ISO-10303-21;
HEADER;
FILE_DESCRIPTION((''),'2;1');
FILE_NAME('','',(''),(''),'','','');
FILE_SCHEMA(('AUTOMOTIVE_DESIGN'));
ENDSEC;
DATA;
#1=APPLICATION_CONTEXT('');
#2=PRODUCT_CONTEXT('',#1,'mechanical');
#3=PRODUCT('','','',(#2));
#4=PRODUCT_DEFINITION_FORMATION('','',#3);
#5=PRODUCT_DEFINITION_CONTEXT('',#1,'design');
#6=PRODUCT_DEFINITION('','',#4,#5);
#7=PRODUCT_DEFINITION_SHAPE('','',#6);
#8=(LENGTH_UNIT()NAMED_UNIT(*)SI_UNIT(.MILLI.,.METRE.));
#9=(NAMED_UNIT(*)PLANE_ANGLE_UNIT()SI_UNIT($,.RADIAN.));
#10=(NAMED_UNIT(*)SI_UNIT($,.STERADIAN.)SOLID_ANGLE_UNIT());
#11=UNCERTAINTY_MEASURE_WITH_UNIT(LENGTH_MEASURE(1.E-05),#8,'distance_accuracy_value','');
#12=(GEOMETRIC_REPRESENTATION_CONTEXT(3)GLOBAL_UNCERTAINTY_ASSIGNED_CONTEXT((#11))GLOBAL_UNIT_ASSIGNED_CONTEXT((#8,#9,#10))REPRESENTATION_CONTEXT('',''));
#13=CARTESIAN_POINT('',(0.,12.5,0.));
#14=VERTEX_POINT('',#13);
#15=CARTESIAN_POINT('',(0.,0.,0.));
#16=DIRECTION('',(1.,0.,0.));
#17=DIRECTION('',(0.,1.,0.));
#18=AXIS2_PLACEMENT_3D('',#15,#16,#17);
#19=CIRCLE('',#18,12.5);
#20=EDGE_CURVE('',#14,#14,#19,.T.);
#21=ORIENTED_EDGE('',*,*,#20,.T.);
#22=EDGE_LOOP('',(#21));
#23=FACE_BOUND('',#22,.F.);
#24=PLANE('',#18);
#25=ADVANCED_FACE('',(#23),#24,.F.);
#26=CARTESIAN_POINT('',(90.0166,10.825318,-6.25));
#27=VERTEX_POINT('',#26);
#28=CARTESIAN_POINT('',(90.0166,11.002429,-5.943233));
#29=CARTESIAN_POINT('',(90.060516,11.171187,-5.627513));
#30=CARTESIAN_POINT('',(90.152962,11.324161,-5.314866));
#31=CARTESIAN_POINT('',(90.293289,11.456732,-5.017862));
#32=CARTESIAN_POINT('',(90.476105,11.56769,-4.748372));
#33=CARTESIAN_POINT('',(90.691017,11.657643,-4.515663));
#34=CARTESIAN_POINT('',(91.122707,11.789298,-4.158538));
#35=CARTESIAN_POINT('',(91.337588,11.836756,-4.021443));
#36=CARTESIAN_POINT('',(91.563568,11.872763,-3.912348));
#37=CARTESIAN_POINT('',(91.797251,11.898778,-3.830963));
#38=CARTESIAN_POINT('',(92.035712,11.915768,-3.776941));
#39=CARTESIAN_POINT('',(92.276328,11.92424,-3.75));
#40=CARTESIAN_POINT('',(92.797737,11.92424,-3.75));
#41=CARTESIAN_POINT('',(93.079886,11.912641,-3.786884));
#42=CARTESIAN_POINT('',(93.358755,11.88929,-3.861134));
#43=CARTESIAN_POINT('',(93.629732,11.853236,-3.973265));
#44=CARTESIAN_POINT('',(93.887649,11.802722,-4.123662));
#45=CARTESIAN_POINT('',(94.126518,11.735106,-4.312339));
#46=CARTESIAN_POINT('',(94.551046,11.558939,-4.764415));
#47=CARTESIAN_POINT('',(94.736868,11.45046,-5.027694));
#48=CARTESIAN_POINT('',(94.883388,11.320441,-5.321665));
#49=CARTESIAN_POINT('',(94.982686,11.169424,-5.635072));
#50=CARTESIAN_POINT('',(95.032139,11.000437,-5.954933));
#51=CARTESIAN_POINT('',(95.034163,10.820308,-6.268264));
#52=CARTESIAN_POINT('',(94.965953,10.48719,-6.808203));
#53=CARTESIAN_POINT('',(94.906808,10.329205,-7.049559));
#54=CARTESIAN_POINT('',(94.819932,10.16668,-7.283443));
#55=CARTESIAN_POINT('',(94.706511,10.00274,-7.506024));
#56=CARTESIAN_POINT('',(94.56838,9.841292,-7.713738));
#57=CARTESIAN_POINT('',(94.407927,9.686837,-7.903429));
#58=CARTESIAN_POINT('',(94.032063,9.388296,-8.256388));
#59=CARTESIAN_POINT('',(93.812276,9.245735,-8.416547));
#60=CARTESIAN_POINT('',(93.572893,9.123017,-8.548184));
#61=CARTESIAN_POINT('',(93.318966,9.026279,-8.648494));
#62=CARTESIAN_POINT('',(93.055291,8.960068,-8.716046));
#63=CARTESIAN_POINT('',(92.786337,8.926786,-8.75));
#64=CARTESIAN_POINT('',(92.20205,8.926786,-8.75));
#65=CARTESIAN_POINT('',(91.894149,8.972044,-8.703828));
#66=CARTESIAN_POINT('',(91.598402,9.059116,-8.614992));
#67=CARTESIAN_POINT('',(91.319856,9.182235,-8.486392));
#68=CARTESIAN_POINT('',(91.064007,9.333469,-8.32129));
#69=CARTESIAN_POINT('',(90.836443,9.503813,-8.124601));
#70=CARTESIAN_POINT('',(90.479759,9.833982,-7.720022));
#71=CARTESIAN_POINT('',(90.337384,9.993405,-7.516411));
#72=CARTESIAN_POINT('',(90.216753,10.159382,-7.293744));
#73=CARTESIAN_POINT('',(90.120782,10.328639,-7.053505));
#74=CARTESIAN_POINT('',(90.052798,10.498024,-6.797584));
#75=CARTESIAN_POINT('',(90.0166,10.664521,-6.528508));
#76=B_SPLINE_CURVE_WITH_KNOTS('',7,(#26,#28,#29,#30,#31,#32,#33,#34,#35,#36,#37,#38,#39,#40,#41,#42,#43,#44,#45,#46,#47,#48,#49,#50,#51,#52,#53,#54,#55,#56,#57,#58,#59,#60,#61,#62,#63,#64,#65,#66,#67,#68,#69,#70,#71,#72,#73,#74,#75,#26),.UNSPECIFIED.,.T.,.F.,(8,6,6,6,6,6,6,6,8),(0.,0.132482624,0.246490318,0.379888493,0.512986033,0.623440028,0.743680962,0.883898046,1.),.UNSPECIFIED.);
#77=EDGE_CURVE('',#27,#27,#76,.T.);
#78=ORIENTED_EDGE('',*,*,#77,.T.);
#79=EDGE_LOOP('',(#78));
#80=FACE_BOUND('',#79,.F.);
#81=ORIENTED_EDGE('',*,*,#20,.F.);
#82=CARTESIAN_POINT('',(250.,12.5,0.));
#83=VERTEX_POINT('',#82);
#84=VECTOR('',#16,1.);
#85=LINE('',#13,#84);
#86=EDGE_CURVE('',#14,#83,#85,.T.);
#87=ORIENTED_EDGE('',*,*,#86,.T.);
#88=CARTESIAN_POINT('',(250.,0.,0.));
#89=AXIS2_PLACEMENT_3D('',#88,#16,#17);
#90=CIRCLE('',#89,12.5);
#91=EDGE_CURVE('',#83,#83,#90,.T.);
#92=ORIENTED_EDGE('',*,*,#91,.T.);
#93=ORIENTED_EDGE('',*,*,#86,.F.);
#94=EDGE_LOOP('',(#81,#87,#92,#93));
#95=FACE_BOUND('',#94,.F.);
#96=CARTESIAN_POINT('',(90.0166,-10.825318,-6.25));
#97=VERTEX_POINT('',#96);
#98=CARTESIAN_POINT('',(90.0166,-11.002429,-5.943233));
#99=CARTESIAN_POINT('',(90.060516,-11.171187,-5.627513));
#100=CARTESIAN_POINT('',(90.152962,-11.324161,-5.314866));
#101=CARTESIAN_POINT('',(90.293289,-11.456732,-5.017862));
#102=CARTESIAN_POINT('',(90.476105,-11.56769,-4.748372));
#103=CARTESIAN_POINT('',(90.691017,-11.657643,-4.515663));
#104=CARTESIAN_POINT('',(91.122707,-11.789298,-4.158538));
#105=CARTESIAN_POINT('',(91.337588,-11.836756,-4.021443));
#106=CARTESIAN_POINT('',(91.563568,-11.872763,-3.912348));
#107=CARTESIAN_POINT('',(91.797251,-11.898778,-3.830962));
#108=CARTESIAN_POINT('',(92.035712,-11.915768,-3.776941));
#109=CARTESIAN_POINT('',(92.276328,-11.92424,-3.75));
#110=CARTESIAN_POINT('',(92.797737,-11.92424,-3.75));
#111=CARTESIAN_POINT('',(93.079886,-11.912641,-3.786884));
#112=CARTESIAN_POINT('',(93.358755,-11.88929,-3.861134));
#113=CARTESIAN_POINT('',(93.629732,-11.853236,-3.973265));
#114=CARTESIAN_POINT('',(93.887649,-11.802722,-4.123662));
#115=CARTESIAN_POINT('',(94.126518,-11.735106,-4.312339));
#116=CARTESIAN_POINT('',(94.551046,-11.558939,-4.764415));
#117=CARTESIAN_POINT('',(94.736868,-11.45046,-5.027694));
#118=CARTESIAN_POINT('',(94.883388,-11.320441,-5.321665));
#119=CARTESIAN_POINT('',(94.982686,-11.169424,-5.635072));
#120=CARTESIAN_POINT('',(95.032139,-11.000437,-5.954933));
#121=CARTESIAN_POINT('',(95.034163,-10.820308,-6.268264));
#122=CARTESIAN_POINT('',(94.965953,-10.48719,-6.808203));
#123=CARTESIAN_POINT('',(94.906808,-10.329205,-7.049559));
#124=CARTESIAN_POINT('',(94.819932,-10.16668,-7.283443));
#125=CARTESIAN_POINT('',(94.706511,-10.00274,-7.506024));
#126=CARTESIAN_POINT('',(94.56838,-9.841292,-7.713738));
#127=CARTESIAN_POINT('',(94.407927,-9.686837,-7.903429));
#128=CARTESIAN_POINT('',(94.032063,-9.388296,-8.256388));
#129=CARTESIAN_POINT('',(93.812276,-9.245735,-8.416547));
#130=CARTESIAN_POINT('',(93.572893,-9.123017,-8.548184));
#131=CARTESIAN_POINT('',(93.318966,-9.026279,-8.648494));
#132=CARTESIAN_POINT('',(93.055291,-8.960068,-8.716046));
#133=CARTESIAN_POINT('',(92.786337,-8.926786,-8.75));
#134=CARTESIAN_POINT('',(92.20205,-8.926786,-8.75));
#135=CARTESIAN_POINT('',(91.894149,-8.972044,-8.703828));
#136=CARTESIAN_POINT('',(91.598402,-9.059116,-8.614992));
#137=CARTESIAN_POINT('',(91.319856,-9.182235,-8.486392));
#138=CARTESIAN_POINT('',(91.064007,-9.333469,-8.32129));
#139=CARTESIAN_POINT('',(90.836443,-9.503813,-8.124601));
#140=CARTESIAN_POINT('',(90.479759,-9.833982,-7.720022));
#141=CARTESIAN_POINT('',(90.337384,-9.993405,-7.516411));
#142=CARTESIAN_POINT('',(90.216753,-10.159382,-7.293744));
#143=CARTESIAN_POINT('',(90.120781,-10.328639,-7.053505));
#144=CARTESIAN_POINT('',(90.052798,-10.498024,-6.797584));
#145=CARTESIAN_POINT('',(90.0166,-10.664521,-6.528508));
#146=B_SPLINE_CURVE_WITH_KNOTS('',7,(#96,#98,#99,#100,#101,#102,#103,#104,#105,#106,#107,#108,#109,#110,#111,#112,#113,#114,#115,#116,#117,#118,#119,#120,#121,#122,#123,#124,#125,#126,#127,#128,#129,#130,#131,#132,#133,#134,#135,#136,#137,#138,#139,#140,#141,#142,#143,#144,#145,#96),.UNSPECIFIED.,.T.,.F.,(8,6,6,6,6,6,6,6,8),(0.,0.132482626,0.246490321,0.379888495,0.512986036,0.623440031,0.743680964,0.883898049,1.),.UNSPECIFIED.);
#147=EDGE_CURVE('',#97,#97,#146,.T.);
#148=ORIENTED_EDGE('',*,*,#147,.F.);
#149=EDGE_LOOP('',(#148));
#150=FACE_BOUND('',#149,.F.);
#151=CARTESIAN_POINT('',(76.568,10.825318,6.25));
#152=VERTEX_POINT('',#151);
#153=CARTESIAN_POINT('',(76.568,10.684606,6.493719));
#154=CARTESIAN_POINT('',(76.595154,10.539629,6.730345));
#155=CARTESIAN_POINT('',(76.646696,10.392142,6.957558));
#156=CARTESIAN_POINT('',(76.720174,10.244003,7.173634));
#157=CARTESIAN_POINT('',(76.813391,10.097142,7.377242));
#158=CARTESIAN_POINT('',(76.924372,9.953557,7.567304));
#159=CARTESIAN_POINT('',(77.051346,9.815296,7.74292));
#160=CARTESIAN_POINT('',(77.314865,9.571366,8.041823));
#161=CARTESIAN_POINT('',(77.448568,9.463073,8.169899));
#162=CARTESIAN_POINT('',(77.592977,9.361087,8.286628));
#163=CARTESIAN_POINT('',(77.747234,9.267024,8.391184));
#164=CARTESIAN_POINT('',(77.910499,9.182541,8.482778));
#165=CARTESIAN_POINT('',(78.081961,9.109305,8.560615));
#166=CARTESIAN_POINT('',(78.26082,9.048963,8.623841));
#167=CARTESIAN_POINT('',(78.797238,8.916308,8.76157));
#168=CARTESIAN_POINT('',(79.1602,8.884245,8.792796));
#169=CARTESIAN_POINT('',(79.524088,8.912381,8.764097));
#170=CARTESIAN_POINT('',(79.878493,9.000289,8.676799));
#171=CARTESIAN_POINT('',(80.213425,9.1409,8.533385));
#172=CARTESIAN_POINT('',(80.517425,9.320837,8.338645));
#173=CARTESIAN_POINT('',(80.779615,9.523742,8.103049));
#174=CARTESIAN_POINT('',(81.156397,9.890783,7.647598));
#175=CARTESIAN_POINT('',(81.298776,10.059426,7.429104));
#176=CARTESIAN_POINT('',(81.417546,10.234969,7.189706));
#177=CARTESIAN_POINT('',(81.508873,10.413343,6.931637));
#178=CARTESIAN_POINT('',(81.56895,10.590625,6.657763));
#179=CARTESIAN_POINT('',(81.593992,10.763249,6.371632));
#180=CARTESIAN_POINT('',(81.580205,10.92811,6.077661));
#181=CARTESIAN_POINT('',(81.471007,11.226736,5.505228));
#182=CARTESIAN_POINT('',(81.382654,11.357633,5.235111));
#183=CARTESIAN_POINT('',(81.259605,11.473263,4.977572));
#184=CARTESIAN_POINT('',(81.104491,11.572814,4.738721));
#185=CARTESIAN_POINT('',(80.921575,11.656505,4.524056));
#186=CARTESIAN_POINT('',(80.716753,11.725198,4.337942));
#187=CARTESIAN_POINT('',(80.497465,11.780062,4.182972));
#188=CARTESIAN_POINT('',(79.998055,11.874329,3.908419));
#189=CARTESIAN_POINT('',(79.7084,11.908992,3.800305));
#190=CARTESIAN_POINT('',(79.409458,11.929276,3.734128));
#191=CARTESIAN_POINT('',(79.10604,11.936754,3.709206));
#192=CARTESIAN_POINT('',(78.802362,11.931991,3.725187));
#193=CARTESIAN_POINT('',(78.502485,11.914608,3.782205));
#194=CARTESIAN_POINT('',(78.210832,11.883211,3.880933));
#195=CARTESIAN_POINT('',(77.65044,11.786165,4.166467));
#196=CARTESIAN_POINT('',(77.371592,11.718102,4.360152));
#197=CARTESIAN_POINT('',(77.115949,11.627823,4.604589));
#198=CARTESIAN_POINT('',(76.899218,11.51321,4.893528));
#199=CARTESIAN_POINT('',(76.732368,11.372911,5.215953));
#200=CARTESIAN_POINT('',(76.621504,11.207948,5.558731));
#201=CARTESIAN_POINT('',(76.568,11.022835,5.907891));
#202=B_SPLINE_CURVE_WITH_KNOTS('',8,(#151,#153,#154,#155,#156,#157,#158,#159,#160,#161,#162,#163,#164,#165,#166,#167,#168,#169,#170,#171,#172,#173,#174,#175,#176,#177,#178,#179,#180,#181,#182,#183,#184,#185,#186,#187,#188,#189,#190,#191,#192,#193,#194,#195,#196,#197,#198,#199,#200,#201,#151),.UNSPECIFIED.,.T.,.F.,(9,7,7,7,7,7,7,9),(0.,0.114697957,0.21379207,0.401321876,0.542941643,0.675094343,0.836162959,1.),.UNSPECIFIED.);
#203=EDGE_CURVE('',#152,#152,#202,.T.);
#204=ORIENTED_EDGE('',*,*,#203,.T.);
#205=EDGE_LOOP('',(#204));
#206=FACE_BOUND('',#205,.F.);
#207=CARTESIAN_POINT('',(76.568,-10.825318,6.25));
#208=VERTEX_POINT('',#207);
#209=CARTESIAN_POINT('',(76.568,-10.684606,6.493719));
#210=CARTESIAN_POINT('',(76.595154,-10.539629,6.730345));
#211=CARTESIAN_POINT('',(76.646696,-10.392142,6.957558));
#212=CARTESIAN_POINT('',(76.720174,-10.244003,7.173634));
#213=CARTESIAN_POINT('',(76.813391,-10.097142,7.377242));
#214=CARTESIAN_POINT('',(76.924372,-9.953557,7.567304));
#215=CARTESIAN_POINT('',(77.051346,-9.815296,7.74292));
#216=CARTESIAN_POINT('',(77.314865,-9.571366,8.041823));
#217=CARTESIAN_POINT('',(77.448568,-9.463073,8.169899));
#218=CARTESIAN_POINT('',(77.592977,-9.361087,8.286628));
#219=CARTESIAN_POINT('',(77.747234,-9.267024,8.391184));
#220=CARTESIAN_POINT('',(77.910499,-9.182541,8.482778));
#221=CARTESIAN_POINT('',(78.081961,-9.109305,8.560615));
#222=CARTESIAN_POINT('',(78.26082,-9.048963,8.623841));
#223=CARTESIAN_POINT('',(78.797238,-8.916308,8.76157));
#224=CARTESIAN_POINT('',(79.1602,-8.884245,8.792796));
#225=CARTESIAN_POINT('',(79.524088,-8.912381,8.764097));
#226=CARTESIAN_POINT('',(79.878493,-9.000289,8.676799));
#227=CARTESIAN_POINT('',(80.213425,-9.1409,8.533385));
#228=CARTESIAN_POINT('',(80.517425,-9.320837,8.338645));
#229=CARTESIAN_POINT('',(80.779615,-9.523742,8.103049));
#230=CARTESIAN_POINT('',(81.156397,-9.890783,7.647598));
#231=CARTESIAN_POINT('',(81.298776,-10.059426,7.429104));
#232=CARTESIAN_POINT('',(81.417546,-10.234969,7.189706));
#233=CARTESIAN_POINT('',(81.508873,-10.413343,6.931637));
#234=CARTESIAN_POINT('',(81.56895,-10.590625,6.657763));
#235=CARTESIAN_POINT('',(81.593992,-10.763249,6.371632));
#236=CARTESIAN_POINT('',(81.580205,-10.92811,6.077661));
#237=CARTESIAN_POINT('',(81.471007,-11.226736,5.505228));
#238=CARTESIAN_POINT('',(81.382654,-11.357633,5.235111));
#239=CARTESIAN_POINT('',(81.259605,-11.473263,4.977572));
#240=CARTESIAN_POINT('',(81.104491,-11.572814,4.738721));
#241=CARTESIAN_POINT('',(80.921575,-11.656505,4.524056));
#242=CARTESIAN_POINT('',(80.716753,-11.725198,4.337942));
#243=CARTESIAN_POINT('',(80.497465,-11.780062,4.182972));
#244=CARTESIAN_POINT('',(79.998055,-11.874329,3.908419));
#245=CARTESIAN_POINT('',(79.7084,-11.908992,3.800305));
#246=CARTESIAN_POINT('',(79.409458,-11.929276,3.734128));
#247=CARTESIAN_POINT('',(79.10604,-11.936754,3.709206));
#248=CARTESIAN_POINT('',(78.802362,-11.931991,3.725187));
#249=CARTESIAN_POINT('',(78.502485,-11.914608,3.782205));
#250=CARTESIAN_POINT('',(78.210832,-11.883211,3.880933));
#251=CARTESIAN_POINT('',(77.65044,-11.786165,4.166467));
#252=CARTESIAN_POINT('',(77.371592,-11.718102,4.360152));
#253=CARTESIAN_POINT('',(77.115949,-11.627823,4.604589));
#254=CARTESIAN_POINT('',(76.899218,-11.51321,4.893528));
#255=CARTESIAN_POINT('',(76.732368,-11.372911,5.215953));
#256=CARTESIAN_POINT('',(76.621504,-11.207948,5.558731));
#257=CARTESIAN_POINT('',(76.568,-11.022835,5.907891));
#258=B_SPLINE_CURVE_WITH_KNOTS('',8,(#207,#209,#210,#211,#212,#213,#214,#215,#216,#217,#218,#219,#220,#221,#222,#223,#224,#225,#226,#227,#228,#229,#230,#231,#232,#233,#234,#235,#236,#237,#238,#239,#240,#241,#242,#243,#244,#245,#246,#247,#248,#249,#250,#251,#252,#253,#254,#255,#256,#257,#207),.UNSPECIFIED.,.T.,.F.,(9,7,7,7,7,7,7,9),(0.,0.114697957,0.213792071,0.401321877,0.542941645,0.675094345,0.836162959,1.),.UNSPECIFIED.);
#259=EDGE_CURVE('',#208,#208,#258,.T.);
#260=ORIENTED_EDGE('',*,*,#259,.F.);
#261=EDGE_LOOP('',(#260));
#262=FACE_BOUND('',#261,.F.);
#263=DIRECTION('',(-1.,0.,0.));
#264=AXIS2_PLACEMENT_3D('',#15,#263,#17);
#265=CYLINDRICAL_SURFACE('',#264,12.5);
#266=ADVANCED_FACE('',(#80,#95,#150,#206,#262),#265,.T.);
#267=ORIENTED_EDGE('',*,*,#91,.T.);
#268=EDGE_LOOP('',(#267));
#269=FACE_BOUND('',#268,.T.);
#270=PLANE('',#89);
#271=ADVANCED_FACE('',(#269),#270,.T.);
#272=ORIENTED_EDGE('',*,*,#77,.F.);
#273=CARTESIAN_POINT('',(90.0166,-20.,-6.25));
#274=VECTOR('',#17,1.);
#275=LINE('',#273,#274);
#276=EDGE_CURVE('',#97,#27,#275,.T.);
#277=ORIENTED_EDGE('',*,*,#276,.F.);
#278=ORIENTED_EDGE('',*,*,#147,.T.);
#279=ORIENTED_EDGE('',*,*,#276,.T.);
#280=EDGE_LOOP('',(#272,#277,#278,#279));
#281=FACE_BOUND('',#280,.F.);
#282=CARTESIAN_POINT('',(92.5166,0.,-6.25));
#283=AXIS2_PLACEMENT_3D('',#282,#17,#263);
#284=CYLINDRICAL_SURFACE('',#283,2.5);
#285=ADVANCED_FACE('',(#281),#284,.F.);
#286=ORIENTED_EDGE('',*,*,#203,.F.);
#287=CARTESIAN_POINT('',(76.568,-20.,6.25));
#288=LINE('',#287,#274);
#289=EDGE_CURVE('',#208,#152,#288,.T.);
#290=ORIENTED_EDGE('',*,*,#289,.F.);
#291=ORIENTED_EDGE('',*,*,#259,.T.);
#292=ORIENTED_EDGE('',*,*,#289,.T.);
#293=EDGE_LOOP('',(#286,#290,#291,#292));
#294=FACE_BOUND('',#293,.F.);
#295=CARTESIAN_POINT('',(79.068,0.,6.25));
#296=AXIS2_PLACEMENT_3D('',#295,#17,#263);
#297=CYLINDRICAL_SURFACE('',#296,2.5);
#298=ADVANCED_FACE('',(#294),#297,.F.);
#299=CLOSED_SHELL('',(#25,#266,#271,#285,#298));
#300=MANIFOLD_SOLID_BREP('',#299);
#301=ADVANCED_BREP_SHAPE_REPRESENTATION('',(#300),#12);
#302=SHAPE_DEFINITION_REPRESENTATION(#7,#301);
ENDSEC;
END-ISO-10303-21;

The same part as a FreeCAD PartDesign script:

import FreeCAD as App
import Part
import Sketcher
Q = App.Units.Quantity

doc = App.newDocument("Part")
body = doc.addObject("PartDesign::Body", "Body")

# Sketch on YZ plane
sketch1 = body.newObject("Sketcher::SketchObject", "Sketch")
sketch1.AttachmentSupport = (doc.getObject("YZ_Plane"), [""])
sketch1.MapMode = "FlatFace"
sketch1.addGeometry(Part.Circle(App.Vector(0, 0, 0), App.Vector(0, 0, 1), 12), False)
sketch1.addConstraint(Sketcher.Constraint("Coincident", 0, 3, -1, 1))
sketch1.addConstraint(Sketcher.Constraint("Diameter", 0, Q("25 mm")))
pad1 = body.newObject("PartDesign::Pad", "Pad")
pad1.Profile = sketch1
pad1.Length = 250

# Sketch on XZ plane
sketch2 = body.newObject("Sketcher::SketchObject", "Sketch001")
sketch2.AttachmentSupport = (doc.getObject("XZ_Plane"), [""])
sketch2.MapMode = "FlatFace"
sketch2.addGeometry(Part.Circle(App.Vector(79.1, 6.2, 0), App.Vector(0, 0, 1), 2.5), False)
sketch2.addGeometry(Part.Circle(App.Vector(92.5, -6.2, 0), App.Vector(0, 0, 1), 2.5), False)
sketch2.addConstraint(Sketcher.Constraint("Equal", 0, 1))
sketch2.addConstraint(Sketcher.Constraint("Diameter", 0, Q("5 mm")))
sketch2.addConstraint(Sketcher.Constraint("DistanceY", 1, 3, 0, 3, Q("12.5 mm")))
sketch2.addConstraint(Sketcher.Constraint("DistanceY", -1, 1, 0, 3, Q("6.25 mm")))
sketch2.addConstraint(Sketcher.Constraint("DistanceX", -1, 1, 1, 3, Q("92.5166 mm")))
sketch2.addConstraint(Sketcher.Constraint("DistanceX", -1, 1, 0, 3, Q("79.068 mm")))
pocket1 = body.newObject("PartDesign::Pocket", "Pocket")
pocket1.Profile = sketch2
pocket1.Length = 40
pocket1.Midplane = True

doc.recompute()
